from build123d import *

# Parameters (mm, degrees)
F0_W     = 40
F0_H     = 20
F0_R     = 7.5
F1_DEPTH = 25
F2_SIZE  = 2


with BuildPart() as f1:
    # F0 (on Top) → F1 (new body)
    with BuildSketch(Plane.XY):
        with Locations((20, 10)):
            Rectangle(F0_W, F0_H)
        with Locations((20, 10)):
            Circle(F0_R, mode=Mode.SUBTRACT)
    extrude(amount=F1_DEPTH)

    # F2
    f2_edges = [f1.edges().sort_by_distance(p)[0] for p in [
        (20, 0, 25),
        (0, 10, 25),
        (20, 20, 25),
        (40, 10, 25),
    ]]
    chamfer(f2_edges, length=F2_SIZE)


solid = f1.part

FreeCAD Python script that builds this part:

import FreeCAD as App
import Part
import Sketcher
from FreeCAD import Vector
Q = App.Units.Quantity


def edges_at(feature, points):
    """Names of the edges that pass closest to the given points."""
    edges = feature.Shape.Edges
    near = lambda p: min(range(len(edges)), key=lambda i: edges[i].distToShape(Part.Vertex(*p))[0])
    return sorted({f"Edge{near(p) + 1}" for p in points})


def add_polygon(sketch, points):
    """Adds a closed chain of lines whose ends are joined by coincident constraints."""
    first, n = sketch.GeometryCount, len(points)
    for a, b in zip(points, points[1:] + points[:1]):
        sketch.addGeometry(Part.LineSegment(App.Vector(*a, 0), App.Vector(*b, 0)), False)
    for i in range(n):
        sketch.addConstraint(Sketcher.Constraint("Coincident", first + i, 2, first + (i + 1) % n, 1))

doc = App.newDocument("Part")
body = doc.addObject("PartDesign::Body", "Body")

# Sketch on XY plane
sketch1 = body.newObject("Sketcher::SketchObject", "Sketch")
sketch1.AttachmentSupport = (doc.getObject("XY_Plane"), [""])
sketch1.MapMode = "FlatFace"
add_polygon(sketch1, [(0, 20), (0, 0), (40, 0), (40, 20)])  # lines 0-3
sketch1.addGeometry(Part.Circle(Vector(20, 10, 0), Vector(0, 0, 1), 8), False)  # 4
sketch1.addConstraint(Sketcher.Constraint("Vertical", 0))
sketch1.addConstraint(Sketcher.Constraint("Horizontal", 1))
sketch1.addConstraint(Sketcher.Constraint("Vertical", 2))
sketch1.addConstraint(Sketcher.Constraint("Horizontal", 3))
sketch1.addConstraint(Sketcher.Constraint("Coincident", 0, 2, -1, 1))
sketch1.addConstraint(Sketcher.Constraint("Diameter", 4, Q("15 mm")))
sketch1.addConstraint(Sketcher.Constraint("DistanceX", 1, 1, 1, 2, Q("40 mm")))
sketch1.addConstraint(Sketcher.Constraint("DistanceY", 0, 2, 0, 1, Q("20 mm")))
sketch1.addConstraint(Sketcher.Constraint("DistanceX", -1, 1, 4, 3, Q("20 mm")))
sketch1.addConstraint(Sketcher.Constraint("DistanceY", -1, 1, 4, 3, Q("10 mm")))
pad1 = body.newObject("PartDesign::Pad", "Pad")
pad1.Profile = sketch1
pad1.Length = 25
doc.recompute()

chamfer = body.newObject("PartDesign::Chamfer", "Chamfer")
chamfer.Base = (pad1, edges_at(pad1, [
    (20, 0, 25),
    (0, 10, 25),
    (20, 20, 25),
    (40, 10, 25),
]))
chamfer.Size = 2

doc.recompute()
